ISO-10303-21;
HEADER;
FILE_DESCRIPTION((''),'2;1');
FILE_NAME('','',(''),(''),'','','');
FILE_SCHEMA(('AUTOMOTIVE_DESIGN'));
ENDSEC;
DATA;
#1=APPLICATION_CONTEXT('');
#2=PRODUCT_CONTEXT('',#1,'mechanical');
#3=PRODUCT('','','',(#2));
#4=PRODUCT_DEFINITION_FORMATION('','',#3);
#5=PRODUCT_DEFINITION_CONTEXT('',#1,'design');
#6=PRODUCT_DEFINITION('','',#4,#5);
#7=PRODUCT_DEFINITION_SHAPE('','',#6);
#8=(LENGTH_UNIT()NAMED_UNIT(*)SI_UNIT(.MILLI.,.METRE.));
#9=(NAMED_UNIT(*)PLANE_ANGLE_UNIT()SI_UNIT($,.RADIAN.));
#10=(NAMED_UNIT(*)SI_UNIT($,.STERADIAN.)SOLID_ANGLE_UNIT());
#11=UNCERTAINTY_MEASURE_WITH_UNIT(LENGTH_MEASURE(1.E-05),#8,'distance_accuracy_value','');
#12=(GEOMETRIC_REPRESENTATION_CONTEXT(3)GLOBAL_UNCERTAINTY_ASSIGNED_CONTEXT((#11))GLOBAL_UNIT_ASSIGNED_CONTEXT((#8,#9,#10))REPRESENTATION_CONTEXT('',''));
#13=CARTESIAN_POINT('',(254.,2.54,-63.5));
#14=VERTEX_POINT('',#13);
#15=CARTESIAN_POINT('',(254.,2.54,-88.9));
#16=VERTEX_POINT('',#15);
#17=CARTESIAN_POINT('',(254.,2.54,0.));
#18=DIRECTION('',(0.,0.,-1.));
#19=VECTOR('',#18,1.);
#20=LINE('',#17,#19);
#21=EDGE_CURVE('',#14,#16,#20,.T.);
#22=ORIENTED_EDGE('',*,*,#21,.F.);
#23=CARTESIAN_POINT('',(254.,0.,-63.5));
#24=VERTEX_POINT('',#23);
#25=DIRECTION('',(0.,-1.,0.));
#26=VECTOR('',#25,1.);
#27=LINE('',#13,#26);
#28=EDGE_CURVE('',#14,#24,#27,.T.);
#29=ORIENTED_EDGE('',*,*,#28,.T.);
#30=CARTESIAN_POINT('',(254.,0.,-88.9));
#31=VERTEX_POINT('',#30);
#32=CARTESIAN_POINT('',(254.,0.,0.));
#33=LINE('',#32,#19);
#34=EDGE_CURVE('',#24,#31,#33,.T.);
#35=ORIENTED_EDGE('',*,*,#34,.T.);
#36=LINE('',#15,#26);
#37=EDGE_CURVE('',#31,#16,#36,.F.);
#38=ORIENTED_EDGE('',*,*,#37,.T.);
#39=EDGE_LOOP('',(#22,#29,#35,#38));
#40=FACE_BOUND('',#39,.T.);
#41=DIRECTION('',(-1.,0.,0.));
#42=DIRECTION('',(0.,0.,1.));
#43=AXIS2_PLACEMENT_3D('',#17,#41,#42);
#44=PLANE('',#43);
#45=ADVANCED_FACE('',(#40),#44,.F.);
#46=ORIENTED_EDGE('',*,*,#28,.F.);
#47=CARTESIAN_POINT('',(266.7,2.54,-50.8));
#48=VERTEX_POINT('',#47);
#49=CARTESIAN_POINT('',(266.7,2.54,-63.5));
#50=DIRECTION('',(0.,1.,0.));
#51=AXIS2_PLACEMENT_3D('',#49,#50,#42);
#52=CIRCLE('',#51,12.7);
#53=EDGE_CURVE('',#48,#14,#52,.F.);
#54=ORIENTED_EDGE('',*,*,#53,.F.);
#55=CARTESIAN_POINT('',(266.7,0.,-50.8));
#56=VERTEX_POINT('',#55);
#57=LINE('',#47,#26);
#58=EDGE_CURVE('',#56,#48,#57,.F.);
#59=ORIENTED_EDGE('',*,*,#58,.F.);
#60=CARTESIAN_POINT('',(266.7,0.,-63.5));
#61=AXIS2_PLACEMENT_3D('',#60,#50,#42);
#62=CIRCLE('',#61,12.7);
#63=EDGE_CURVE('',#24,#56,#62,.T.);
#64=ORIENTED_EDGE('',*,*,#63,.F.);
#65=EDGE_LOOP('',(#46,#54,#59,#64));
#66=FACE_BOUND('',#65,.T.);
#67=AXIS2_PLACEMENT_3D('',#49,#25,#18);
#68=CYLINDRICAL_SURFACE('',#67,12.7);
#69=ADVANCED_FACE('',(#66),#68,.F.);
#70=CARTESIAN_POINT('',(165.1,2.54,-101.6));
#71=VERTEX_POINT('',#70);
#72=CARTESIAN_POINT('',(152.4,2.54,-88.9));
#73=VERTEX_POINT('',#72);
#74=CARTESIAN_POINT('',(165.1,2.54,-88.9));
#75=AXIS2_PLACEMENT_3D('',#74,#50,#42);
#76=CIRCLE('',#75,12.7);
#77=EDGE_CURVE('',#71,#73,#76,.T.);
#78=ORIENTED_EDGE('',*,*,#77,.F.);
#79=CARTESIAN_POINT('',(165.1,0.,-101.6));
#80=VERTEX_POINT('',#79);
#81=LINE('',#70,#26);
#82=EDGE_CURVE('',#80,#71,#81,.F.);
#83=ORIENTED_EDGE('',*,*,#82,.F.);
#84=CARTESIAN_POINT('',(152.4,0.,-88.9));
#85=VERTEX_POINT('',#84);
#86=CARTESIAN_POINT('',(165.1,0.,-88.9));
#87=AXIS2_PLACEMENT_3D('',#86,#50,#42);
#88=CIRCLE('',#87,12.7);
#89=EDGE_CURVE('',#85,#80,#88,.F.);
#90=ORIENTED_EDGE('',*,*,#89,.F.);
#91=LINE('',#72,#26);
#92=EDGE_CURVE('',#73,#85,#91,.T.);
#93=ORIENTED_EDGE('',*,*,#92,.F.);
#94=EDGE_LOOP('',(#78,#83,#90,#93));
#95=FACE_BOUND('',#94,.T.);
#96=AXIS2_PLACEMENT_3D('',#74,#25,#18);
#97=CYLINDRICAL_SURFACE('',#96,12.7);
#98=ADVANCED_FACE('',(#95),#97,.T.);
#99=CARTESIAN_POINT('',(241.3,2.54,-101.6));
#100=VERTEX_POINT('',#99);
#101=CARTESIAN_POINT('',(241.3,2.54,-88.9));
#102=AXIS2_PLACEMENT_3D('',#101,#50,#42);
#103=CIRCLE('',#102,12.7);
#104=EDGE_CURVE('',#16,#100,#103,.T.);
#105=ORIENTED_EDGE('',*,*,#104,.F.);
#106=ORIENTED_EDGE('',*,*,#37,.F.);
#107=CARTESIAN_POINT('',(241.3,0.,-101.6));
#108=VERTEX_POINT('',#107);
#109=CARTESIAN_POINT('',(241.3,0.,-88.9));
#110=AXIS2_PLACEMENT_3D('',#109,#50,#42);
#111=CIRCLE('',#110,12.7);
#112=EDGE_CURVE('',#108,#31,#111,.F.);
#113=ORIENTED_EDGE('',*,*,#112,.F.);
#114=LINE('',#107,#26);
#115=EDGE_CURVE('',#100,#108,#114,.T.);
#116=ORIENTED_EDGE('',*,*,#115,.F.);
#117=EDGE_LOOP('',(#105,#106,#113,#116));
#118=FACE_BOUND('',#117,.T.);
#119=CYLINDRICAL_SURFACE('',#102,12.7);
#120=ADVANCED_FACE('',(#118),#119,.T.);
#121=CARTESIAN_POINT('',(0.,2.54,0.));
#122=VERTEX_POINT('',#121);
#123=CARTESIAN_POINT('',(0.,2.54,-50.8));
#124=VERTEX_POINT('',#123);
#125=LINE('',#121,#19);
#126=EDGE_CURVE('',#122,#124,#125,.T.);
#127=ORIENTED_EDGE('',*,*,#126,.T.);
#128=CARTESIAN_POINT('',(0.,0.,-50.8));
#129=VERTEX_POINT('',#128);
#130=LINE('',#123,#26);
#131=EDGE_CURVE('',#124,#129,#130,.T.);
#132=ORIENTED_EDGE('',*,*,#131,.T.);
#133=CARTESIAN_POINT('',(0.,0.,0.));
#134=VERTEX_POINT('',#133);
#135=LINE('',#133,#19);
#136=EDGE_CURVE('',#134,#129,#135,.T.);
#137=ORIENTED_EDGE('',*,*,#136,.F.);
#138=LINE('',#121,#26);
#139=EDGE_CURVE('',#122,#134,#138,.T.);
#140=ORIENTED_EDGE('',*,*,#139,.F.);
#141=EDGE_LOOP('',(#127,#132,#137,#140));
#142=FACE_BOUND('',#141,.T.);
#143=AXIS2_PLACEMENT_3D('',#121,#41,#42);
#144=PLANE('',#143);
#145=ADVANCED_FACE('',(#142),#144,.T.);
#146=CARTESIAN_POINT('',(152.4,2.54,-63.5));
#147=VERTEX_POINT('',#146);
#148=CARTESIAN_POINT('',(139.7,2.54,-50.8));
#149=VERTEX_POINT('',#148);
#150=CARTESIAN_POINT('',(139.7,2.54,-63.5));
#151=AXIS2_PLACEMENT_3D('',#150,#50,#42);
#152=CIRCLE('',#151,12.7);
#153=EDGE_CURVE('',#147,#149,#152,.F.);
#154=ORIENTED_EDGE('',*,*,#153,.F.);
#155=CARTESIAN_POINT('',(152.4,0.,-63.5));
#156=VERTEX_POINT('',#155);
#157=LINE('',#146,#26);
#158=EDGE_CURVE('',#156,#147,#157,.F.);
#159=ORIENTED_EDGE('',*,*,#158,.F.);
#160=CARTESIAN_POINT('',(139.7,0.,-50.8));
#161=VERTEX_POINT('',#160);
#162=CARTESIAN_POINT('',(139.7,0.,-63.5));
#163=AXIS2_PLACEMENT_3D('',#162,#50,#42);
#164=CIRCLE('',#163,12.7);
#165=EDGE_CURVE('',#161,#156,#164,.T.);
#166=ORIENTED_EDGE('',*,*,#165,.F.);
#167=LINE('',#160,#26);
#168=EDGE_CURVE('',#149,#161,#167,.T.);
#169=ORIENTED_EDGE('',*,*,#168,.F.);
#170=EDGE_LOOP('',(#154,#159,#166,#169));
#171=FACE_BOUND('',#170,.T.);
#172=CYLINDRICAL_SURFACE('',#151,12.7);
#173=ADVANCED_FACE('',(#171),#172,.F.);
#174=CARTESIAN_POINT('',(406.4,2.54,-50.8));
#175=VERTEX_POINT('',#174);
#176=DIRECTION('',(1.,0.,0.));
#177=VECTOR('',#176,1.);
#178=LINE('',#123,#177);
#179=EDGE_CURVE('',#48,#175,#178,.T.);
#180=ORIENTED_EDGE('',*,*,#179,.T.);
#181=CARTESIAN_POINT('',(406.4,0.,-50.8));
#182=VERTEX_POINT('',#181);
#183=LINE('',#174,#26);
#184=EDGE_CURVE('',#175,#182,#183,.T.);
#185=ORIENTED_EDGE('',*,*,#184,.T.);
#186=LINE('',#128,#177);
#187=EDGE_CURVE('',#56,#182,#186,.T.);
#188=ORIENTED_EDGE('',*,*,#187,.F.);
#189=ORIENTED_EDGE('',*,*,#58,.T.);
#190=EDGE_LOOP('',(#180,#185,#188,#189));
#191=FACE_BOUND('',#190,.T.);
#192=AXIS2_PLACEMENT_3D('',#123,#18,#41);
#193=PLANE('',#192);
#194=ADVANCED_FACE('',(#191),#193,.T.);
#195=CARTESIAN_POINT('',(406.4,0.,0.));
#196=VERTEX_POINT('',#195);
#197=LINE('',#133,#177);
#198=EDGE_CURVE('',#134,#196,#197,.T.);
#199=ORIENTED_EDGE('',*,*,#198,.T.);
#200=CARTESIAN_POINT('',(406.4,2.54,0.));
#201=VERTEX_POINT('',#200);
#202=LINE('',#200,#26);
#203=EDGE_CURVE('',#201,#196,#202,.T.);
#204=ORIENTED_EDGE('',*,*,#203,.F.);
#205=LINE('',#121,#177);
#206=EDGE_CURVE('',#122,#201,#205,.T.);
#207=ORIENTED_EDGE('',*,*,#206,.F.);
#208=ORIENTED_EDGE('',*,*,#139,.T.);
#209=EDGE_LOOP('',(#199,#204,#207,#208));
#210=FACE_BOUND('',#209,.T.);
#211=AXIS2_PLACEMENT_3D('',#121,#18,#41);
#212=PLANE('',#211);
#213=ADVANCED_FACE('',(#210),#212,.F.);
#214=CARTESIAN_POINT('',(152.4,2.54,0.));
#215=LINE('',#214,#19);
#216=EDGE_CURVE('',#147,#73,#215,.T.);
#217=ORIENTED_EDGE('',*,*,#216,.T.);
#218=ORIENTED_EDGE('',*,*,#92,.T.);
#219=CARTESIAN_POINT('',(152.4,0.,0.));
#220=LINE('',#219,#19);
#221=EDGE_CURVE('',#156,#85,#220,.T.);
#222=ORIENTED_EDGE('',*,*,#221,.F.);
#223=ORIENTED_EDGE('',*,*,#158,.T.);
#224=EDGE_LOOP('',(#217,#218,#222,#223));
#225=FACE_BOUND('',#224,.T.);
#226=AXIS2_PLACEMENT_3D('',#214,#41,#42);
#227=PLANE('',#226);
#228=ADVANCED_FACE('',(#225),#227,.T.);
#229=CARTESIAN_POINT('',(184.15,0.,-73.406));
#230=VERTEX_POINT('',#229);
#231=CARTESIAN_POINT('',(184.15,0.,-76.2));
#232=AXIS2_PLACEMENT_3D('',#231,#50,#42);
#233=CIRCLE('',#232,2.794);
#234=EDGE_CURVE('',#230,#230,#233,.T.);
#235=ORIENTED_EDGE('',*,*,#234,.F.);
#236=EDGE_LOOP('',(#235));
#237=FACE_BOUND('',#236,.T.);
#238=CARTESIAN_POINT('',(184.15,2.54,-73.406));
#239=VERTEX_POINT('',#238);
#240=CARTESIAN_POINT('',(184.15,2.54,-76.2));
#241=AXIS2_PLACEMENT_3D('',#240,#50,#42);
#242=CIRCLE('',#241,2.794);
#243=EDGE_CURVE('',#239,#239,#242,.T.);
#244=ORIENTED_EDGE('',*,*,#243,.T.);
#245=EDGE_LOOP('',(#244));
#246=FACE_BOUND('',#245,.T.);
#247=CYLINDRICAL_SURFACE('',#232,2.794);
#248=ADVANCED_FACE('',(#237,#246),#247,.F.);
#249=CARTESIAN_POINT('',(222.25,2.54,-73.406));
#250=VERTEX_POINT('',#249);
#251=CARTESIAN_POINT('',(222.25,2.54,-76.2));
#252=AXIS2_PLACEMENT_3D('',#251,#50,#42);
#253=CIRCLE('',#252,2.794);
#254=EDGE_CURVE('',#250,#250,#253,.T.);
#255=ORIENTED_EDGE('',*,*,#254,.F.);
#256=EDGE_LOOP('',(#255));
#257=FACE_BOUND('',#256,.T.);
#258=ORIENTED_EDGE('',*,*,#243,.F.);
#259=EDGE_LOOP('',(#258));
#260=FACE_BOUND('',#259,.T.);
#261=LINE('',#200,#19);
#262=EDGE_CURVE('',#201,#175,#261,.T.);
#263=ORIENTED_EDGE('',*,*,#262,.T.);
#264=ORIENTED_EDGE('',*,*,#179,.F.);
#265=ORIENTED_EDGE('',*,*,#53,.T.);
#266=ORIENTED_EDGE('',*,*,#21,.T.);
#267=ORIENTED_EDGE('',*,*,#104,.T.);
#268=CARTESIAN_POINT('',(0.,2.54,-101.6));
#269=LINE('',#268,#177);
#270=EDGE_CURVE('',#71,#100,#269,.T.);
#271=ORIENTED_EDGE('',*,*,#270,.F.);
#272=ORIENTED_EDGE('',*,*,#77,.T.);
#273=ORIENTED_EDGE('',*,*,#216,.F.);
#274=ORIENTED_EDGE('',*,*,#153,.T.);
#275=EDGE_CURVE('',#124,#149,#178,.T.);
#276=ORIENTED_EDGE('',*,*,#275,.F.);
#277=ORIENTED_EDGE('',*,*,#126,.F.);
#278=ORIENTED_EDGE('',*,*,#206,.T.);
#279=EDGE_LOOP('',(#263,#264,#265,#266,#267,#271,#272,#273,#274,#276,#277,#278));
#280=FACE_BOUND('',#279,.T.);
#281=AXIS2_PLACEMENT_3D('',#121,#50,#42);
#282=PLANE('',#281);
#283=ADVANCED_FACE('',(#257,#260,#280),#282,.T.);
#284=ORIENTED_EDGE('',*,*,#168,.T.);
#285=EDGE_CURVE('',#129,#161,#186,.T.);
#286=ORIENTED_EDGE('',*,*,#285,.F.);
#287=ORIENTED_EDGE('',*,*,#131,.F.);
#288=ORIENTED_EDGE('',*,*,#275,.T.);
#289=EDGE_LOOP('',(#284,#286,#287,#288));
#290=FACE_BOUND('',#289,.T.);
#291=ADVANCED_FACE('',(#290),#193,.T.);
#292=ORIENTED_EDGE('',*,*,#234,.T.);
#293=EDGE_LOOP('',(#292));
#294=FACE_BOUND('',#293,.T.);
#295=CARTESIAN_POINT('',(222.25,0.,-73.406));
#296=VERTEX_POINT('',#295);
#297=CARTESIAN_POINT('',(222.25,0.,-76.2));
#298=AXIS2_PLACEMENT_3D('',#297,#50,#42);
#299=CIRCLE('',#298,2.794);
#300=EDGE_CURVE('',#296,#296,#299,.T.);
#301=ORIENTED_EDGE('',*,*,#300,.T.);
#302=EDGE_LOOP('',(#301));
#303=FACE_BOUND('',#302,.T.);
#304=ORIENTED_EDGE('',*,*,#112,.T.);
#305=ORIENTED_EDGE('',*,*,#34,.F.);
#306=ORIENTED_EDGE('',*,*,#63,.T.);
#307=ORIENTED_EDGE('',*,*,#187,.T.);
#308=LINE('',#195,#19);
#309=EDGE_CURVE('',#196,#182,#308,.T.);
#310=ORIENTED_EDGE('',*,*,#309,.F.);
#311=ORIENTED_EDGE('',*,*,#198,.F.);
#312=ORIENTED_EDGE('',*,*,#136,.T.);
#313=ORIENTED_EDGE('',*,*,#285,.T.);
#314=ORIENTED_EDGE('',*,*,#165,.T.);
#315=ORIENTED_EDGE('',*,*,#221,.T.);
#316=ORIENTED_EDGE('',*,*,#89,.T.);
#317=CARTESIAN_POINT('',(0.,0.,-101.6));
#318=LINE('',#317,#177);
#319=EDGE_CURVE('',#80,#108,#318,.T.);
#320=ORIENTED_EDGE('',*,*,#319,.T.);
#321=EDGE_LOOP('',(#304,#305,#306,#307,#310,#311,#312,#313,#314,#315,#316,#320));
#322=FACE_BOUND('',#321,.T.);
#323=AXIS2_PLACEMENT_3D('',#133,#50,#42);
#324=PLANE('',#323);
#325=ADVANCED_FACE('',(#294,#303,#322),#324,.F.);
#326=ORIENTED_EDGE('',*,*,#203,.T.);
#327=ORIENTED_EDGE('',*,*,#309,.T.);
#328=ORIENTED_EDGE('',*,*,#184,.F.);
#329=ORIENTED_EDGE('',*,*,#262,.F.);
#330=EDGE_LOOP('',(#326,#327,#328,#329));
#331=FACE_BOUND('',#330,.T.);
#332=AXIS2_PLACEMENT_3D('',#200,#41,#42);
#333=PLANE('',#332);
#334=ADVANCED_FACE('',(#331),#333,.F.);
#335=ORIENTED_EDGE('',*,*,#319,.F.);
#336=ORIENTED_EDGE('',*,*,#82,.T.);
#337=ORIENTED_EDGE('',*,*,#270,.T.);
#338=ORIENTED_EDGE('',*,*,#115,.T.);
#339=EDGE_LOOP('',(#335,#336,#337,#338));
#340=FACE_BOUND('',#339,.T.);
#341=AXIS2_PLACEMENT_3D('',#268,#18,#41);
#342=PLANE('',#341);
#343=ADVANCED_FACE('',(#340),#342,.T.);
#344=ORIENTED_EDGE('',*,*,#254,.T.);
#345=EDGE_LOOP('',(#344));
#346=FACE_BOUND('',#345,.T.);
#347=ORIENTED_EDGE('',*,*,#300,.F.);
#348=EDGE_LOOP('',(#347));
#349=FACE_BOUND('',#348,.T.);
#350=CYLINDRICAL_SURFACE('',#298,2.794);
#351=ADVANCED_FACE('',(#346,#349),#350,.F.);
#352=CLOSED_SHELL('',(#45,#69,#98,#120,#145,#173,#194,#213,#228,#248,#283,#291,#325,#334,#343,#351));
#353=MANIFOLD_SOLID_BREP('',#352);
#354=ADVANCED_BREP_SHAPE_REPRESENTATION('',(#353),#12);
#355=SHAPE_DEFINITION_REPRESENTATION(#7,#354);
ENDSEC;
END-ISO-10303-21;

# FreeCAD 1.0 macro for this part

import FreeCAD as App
import Part
import Sketcher
from FreeCAD import Vector
Q = App.Units.Quantity


def edges_at(feature, points):
    """Names of the edges that pass closest to the given points."""
    edges = feature.Shape.Edges
    near = lambda p: min(range(len(edges)), key=lambda i: edges[i].distToShape(Part.Vertex(*p))[0])
    return sorted({f"Edge{near(p) + 1}" for p in points})


def add_polygon(sketch, points):
    """Adds a closed chain of lines whose ends are joined by coincident constraints."""
    first, n = sketch.GeometryCount, len(points)
    for a, b in zip(points, points[1:] + points[:1]):
        sketch.addGeometry(Part.LineSegment(App.Vector(*a, 0), App.Vector(*b, 0)), False)
    for i in range(n):
        sketch.addConstraint(Sketcher.Constraint("Coincident", first + i, 2, first + (i + 1) % n, 1))

doc = App.newDocument("Part")
body = doc.addObject("PartDesign::Body", "Body")

sketch1 = body.newObject("Sketcher::SketchObject", "Sketch")
sketch1.AttachmentSupport = (doc.getObject("XZ_Plane"), [""])
sketch1.MapMode = "FlatFace"
add_polygon(sketch1, [(0, -50.8), (0, 0), (406.4, 0), (406.4, -50.8), (254, -50.8), (254, -101.6), (152.4, -101.6), (152.4, -50.8)])
sketch1.addConstraint([
    Sketcher.Constraint("Vertical", 0),
    Sketcher.Constraint("Horizontal", 1),
    Sketcher.Constraint("Vertical", 2),
    Sketcher.Constraint("Horizontal", 3),
    Sketcher.Constraint("Vertical", 4),
    Sketcher.Constraint("Horizontal", 5),
    Sketcher.Constraint("Vertical", 6),
    Sketcher.Constraint("Horizontal", 7),
    Sketcher.Constraint("Coincident", 0, 2, -1, 1),
    Sketcher.Constraint("Horizontal", 3, 2, 6, 2),
    Sketcher.Constraint("Equal", 3, 7),
    Sketcher.Constraint("Equal", 2, 4),
    Sketcher.Constraint("DistanceX", 1, 1, 1, 2, Q("16 in")),
    Sketcher.Constraint("DistanceX", 3, 2, 3, 1, Q("6 in")),
    Sketcher.Constraint("DistanceY", 0, 1, 0, 2, Q("2 in")),
])
pad1 = body.newObject("PartDesign::Pad", "Pad")
pad1.Profile = sketch1
pad1.Length = Q("0.1 in")
pad1.Reversed = True

sketch2 = body.newObject("Sketcher::SketchObject", "Sketch001")
sketch2.AttachmentSupport = (doc.getObject("XZ_Plane"), [""])
sketch2.MapMode = "FlatFace"
sketch2.AttachmentOffset = App.Placement(Vector(0, 0, -0.1 * 25.4), App.Rotation())
sketch2.addGeometry([
    Part.Circle(Vector(222.25, -76.2, 0), Vector(0, 0, 1), 2.794),
    Part.Circle(Vector(184.15, -76.2, 0), Vector(0, 0, 1), 2.794),
], False)
sketch2.addConstraint([
    Sketcher.Constraint("Equal", 0, 1),
    Sketcher.Constraint("Horizontal", 0, 3, 1, 3),
    Sketcher.Constraint("Diameter", 0, Q("0.22 in")),
    Sketcher.Constraint("DistanceY", 0, 3, -1, 1, Q("3 in")),
    Sketcher.Constraint("DistanceX", 1, 3, 0, 3, Q("1.5 in")),
    Sketcher.Constraint("DistanceX", -1, 1, 0, 3, Q("8.75 in")),
])
pocket1 = body.newObject("PartDesign::Pocket", "Pocket")
pocket1.Profile = sketch2
pocket1.Length = Q("0.1 in")
pocket1.Reversed = True
doc.recompute()

fillet = body.newObject("PartDesign::Fillet", "Fillet")
fillet.Base = (pocket1, edges_at(pocket1, [(152.4, 1.27, -101.6), (254, 1.27, -101.6)]))
fillet.Radius = Q("0.5 in")
doc.recompute()

fillet2 = body.newObject("PartDesign::Fillet", "Fillet001")
fillet2.Base = (fillet, edges_at(fillet, [(152.4, 1.27, -50.8), (254, 1.27, -50.8)]))
fillet2.Radius = Q("0.5 in")

doc.recompute()
